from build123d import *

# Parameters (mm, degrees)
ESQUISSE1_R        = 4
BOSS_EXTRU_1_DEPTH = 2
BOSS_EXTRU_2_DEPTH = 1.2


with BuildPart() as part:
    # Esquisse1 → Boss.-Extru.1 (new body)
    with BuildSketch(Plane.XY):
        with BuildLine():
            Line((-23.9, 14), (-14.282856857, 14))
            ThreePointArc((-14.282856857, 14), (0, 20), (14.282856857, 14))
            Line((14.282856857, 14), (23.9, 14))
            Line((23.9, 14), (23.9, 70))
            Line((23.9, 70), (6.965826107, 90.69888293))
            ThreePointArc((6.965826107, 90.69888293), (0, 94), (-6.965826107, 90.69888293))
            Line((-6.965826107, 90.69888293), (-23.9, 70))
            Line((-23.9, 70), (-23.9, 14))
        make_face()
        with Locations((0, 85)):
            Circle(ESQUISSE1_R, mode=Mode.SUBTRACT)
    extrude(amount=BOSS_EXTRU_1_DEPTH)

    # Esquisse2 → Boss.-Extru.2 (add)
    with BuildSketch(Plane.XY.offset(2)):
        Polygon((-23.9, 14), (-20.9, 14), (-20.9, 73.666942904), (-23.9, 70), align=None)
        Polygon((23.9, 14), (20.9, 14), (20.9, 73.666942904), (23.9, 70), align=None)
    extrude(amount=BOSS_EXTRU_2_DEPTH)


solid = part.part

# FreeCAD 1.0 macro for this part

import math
import FreeCAD as App
import Part
import Sketcher
from FreeCAD import Vector
Q = App.Units.Quantity


def add_polygon(sketch, points):
    """Adds a closed chain of lines whose ends are joined by coincident constraints."""
    first, n = sketch.GeometryCount, len(points)
    for a, b in zip(points, points[1:] + points[:1]):
        sketch.addGeometry(Part.LineSegment(App.Vector(*a, 0), App.Vector(*b, 0)), False)
    for i in range(n):
        sketch.addConstraint(Sketcher.Constraint("Coincident", first + i, 2, first + (i + 1) % n, 1))

doc = App.newDocument("Part")
body = doc.addObject("PartDesign::Body", "Body")

# Sketch on XY plane
sketch1 = body.newObject("Sketcher::SketchObject", "Sketch")
sketch1.AttachmentSupport = (doc.getObject("XY_Plane"), [""])
sketch1.MapMode = "FlatFace"
sketch1.addGeometry([
    Part.LineSegment(Vector(-23.9, 14, 0), Vector(-14.3, 14, 0)),  # 0
    Part.ArcOfCircle(Part.Circle(Vector(0, 0, 0), Vector(0, 0, 1), 20), math.radians(44), math.radians(136)),  # 1
    Part.LineSegment(Vector(14.3, 14, 0), Vector(23.9, 14, 0)),  # 2
    Part.LineSegment(Vector(23.9, 14, 0), Vector(23.9, 70, 0)),  # 3
    Part.LineSegment(Vector(23.9, 70, 0), Vector(7, 90.7, 0)),  # 4
    Part.ArcOfCircle(Part.Circle(Vector(0, 85, 0), Vector(0, 0, 1), 9), math.radians(39), math.radians(141)),  # 5
    Part.LineSegment(Vector(-7, 90.7, 0), Vector(-23.9, 70, 0)),  # 6
    Part.LineSegment(Vector(-23.9, 70, 0), Vector(-23.9, 14, 0)),  # 7
    Part.Circle(Vector(0, 85, 0), Vector(0, 0, 1), 4),  # 8
], False)
sketch1.addConstraint([
    Sketcher.Constraint("Coincident", 0, 2, 1, 2),
    Sketcher.Constraint("Coincident", 1, 1, 2, 1),
    Sketcher.Constraint("Coincident", 2, 2, 3, 1),
    Sketcher.Constraint("Coincident", 3, 2, 4, 1),
    Sketcher.Constraint("Tangent", 4, 2, 5, 1),
    Sketcher.Constraint("Tangent", 5, 2, 6, 1),
    Sketcher.Constraint("Coincident", 6, 2, 7, 1),
    Sketcher.Constraint("Coincident", 7, 2, 0, 1),
    Sketcher.Constraint("Horizontal", 0),
    Sketcher.Constraint("Horizontal", 2),
    Sketcher.Constraint("Vertical", 3),
    Sketcher.Constraint("Vertical", 7),
    Sketcher.Constraint("Coincident", 1, 3, -1, 1),
    Sketcher.Constraint("Coincident", 8, 3, 5, 3),
    Sketcher.Constraint("Symmetric", 4, 2, 5, 2, -2),
    Sketcher.Constraint("Symmetric", 2, 2, 7, 2, -2),
    Sketcher.Constraint("Diameter", 8, Q("8 mm")),
    Sketcher.Constraint("Radius", 1, Q("20 mm")),
    Sketcher.Constraint("Radius", 5, Q("9 mm")),
    Sketcher.Constraint("DistanceY", 3, 1, 3, 2, Q("56 mm")),
    Sketcher.Constraint("DistanceY", -1, 1, 5, 3, Q("85 mm")),
    Sketcher.Constraint("DistanceY", -1, 1, 0, 2, Q("14 mm")),
    Sketcher.Constraint("DistanceX", -1, 1, 2, 2, Q("23.9 mm")),
])
pad1 = body.newObject("PartDesign::Pad", "Pad")
pad1.Profile = sketch1
pad1.Length = 2

# Sketch on XY plane
sketch2 = body.newObject("Sketcher::SketchObject", "Sketch001")
sketch2.AttachmentSupport = (doc.getObject("XY_Plane"), [""])
sketch2.MapMode = "FlatFace"
sketch2.AttachmentOffset = App.Placement(Vector(0, 0, 2), App.Rotation())
add_polygon(sketch2, [(-23.9, 14), (-20.9, 14), (-20.9, 73.7), (-23.9, 70)])  # lines 0-3
add_polygon(sketch2, [(20.9, 14), (23.9, 14), (23.9, 70), (20.9, 73.7)])  # lines 4-7
sketch2.addConstraint([
    Sketcher.Constraint("Horizontal", 0),
    Sketcher.Constraint("Vertical", 1),
    Sketcher.Constraint("Vertical", 3),
    Sketcher.Constraint("Horizontal", 4),
    Sketcher.Constraint("Vertical", 5),
    Sketcher.Constraint("Vertical", 7),
    Sketcher.Constraint("Symmetric", 3, 2, 4, 2, -2),
    Sketcher.Constraint("Symmetric", 1, 2, 6, 2, -2),
    Sketcher.Constraint("Horizontal", 2, 2, 5, 2),
    Sketcher.Constraint("DistanceX", 0, 1, 0, 2, Q("3 mm")),
    Sketcher.Constraint("DistanceY", 3, 2, 3, 1, Q("56 mm")),
    Sketcher.Constraint("DistanceY", -1, 1, 0, 2, Q("14 mm")),
    Sketcher.Constraint("DistanceX", 0, 2, -1, 1, Q("20.9 mm")),
    Sketcher.Constraint("Distance", 2, Q("4.737771 mm")),
])
pad2 = body.newObject("PartDesign::Pad", "Pad001")
pad2.Profile = sketch2
pad2.Length = 1.2

doc.recompute()
